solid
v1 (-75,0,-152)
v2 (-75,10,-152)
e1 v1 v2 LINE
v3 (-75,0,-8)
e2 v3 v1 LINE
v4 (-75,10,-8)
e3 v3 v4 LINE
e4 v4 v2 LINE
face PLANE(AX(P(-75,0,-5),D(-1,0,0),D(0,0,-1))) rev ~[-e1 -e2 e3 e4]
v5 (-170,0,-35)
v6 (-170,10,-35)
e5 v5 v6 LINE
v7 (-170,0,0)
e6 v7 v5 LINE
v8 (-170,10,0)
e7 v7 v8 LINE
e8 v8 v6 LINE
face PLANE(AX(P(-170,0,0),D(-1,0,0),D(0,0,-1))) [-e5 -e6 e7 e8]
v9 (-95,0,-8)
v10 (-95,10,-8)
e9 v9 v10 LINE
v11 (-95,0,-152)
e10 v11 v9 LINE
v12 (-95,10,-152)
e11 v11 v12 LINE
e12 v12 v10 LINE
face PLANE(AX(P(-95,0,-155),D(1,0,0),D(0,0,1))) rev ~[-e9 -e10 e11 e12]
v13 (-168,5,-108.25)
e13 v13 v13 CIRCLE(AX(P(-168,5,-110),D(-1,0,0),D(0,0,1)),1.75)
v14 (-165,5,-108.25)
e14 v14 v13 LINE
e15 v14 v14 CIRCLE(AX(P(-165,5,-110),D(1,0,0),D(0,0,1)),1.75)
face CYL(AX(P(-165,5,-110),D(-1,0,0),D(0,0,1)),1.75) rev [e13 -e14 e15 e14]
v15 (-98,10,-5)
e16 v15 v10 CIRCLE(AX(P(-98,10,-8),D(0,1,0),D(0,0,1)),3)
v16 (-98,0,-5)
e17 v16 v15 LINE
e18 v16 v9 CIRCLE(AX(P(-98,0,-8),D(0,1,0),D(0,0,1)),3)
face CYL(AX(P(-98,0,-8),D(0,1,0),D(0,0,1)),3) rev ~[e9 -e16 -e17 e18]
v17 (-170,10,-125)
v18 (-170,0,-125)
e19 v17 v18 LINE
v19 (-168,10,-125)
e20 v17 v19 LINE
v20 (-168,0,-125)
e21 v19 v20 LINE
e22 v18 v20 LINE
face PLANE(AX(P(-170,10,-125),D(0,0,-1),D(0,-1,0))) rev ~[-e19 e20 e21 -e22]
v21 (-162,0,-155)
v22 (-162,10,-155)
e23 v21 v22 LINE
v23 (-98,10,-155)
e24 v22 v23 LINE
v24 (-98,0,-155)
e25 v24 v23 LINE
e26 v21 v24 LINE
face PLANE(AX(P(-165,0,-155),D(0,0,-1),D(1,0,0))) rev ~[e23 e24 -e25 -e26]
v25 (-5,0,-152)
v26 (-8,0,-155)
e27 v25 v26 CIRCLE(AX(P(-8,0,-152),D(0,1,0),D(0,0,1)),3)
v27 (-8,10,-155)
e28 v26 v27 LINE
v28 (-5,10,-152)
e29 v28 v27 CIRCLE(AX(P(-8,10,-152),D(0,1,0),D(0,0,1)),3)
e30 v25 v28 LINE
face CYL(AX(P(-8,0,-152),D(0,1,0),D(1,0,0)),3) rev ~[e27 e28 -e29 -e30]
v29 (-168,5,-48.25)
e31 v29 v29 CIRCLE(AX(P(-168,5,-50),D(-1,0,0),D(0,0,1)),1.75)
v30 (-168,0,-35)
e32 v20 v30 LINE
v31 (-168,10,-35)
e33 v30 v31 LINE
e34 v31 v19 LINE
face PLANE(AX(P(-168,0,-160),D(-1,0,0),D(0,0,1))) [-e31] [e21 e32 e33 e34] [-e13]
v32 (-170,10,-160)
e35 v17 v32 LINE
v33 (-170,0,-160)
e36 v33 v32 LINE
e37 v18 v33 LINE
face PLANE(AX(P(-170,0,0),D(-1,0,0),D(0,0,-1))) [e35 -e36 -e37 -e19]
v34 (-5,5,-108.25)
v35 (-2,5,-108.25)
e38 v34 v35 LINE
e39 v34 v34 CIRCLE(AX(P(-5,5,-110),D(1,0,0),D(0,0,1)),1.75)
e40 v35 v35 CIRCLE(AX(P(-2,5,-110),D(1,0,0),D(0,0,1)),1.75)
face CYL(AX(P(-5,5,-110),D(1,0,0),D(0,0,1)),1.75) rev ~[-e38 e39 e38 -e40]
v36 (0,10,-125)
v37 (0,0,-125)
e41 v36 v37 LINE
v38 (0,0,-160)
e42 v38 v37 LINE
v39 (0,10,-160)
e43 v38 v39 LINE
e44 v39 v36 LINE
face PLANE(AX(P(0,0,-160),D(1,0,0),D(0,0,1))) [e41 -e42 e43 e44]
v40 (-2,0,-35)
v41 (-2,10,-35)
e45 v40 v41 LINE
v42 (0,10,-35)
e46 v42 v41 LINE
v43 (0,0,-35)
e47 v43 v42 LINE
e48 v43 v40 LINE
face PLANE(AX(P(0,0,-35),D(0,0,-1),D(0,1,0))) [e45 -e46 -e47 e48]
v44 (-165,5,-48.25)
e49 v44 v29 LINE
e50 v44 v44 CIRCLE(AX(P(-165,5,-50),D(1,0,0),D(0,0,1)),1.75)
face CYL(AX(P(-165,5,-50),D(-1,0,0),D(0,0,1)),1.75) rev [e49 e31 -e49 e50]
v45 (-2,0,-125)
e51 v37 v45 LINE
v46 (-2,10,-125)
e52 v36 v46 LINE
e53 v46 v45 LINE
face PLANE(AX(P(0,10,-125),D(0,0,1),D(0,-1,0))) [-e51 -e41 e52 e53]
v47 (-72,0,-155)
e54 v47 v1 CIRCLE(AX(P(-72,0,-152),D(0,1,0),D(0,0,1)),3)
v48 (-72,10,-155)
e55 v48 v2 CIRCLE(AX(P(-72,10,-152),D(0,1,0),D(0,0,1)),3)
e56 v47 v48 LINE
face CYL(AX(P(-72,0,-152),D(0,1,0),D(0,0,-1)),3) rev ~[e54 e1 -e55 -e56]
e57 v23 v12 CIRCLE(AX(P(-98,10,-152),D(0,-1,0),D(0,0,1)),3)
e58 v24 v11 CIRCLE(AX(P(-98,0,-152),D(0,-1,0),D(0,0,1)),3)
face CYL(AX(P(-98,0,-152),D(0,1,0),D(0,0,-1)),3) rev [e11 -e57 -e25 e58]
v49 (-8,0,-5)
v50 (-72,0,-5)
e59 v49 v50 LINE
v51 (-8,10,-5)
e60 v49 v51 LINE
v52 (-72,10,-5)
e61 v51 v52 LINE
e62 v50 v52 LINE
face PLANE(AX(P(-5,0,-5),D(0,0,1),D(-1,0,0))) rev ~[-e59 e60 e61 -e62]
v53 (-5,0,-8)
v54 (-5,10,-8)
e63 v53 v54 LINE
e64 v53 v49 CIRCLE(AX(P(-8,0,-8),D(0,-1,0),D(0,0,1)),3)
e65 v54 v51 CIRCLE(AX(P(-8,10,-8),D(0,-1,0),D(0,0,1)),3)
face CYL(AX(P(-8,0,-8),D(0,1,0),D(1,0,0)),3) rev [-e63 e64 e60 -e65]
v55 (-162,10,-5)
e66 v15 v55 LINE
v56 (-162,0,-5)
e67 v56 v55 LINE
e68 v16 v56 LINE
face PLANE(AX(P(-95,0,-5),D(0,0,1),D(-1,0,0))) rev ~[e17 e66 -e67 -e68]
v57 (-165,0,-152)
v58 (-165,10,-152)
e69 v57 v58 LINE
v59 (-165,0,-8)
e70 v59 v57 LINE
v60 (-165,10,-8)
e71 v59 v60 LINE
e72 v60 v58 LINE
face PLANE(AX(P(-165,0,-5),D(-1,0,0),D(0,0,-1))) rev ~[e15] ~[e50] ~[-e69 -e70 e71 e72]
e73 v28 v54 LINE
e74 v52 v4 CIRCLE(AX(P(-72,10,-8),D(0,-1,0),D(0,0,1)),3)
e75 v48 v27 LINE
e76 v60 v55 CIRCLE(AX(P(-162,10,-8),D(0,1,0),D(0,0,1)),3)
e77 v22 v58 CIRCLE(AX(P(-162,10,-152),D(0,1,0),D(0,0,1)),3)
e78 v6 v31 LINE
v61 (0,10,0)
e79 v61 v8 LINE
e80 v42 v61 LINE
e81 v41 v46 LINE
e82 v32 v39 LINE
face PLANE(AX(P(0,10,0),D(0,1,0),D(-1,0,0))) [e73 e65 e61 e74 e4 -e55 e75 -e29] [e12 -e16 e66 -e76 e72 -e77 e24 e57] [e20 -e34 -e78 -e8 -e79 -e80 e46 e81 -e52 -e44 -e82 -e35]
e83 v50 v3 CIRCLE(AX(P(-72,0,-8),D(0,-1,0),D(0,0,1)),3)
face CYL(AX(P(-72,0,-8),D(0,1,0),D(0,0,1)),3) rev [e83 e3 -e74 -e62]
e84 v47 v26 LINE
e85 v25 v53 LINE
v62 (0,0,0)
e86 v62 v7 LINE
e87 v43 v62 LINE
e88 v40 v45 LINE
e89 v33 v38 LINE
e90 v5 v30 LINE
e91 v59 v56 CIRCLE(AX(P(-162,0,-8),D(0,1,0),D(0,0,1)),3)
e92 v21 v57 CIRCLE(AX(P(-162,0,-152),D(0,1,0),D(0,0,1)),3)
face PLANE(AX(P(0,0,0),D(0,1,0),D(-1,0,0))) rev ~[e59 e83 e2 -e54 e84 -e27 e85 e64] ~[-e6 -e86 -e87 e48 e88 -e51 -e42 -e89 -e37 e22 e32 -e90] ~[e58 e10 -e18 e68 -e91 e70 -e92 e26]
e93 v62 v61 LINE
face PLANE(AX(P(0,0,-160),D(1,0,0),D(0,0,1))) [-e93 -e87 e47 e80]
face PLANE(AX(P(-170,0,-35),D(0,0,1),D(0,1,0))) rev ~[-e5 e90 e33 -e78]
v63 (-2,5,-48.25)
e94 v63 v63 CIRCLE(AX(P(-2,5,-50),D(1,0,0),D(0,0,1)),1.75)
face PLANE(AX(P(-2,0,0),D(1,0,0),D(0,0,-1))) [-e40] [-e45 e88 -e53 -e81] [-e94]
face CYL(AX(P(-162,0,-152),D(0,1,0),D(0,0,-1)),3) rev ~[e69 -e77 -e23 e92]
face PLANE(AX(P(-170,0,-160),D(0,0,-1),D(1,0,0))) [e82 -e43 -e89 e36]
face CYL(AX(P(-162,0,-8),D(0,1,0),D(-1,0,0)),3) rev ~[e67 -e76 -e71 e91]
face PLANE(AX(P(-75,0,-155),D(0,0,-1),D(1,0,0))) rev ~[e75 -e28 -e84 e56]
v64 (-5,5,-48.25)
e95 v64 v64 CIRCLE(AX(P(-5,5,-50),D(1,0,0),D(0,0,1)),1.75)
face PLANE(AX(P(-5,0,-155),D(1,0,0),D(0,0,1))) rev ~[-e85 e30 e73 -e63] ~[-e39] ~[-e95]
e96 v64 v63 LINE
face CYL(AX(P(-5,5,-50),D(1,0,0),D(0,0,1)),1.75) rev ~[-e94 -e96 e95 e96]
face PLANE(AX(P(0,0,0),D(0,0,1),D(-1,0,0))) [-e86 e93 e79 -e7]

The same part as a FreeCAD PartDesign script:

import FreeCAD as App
import Part
import Sketcher

V = App.Vector


def edges_at(feature, points):
    """Names of the edges that pass closest to the given points."""
    edges = feature.Shape.Edges
    near = lambda p: min(range(len(edges)), key=lambda i: edges[i].distToShape(Part.Vertex(*p))[0])
    return sorted({f"Edge{near(p) + 1}" for p in points})


def add_polygon(sketch, points):
    """Adds a closed chain of lines whose ends are joined by coincident constraints."""
    first, n = sketch.GeometryCount, len(points)
    for a, b in zip(points, points[1:] + points[:1]):
        sketch.addGeometry(Part.LineSegment(App.Vector(*a, 0), App.Vector(*b, 0)), False)
    for i in range(n):
        sketch.addConstraint(Sketcher.Constraint("Coincident", first + i, 2, first + (i + 1) % n, 1))

doc = App.newDocument("Part")
body = doc.addObject("PartDesign::Body", "Body")

sketch1 = body.newObject("Sketcher::SketchObject", "Sketch")
sketch1.AttachmentSupport = (doc.getObject("XZ_Plane"), [""])
sketch1.MapMode = "FlatFace"
add_polygon(sketch1, [(-170, 0), (0, 0), (0, -160), (-170, -160)])
add_polygon(sketch1, [(-5, -155), (-5, -5), (-75, -5), (-75, -155)])
add_polygon(sketch1, [(-165, -155), (-95, -155), (-95, -5), (-165, -5)])
sketch1.addConstraint([
    Sketcher.Constraint("Horizontal", 0),
    Sketcher.Constraint("Vertical", 1),
    Sketcher.Constraint("Horizontal", 2),
    Sketcher.Constraint("Vertical", 3),
    Sketcher.Constraint("Vertical", 4),
    Sketcher.Constraint("Horizontal", 5),
    Sketcher.Constraint("Vertical", 6),
    Sketcher.Constraint("Horizontal", 7),
    Sketcher.Constraint("Horizontal", 8),
    Sketcher.Constraint("Vertical", 9),
    Sketcher.Constraint("Horizontal", 10),
    Sketcher.Constraint("Vertical", 11),
    Sketcher.Constraint("Coincident", 0, 2, -1, 1),
    Sketcher.Constraint("Horizontal", 7, 2, 8, 2),
    Sketcher.Constraint("Horizontal", 5, 2, 9, 2),
    Sketcher.Constraint("Equal", 7, 8),
    Sketcher.Constraint("DistanceX", 0, 1, 0, 2, 170.0),
    Sketcher.Constraint("DistanceY", 1, 2, 1, 1, 160.0),
    Sketcher.Constraint("DistanceX", 4, 2, -1, 1, 5.0),
    Sketcher.Constraint("DistanceY", 4, 2, -1, 1, 5.0),
    Sketcher.Constraint("DistanceY", 1, 2, 6, 2, 5.0),
    Sketcher.Constraint("DistanceX", 8, 2, 6, 2, 20.0),
    Sketcher.Constraint("DistanceX", 3, 2, 10, 2, 5.0),
])
pad1 = body.newObject("PartDesign::Pad", "Pad")
pad1.Profile = sketch1
pad1.Length = 10
pad1.Reversed = True
doc.recompute()

fillet = body.newObject("PartDesign::Fillet", "Fillet")
fillet.Base = (pad1, edges_at(pad1, [
    (-165, 5, -5),
    (-95, 5, -5),
    (-5, 5, -5),
    (-5, 5, -155),
    (-75, 5, -155),
    (-95, 5, -155),
    (-75, 5, -5),
    (-165, 5, -155),
]))
fillet.Radius = 3

sketch2 = body.newObject("Sketcher::SketchObject", "Sketch001")
sketch2.AttachmentSupport = (doc.getObject("YZ_Plane"), [""])
sketch2.MapMode = "FlatFace"
sketch2.AttachmentOffset = App.Placement(V(0, 0, -5), App.Rotation())
sketch2.addGeometry([
    Part.Circle(V(5, -50, 0), V(0, 0, 1), 1.75),
    Part.Circle(V(5, -110, 0), V(0, 0, 1), 1.75),
], False)
sketch2.addConstraint([
    Sketcher.Constraint("Equal", 0, 1),
    Sketcher.Constraint("Vertical", 0, 3, 1, 3),
    Sketcher.Constraint("Diameter", 0, 3.5),
    Sketcher.Constraint("DistanceX", -1, 1, 0, 3, 5.0),
    Sketcher.Constraint("DistanceY", 0, 3, -1, 1, 50.0),
    Sketcher.Constraint("DistanceY", 1, 3, -1, 1, 110.0),
])
doc.recompute()
hole = body.newObject("PartDesign::Hole", "Hole")
hole.Profile = sketch2
hole.ThreadType = "None"
hole.Diameter = 3.5
hole.DepthType = "ThroughAll"
hole.Reversed = True

sketch3 = body.newObject("Sketcher::SketchObject", "Sketch002")
sketch3.AttachmentSupport = (doc.getObject("YZ_Plane"), [""])
sketch3.MapMode = "FlatFace"
add_polygon(sketch3, [(10, -125), (10, -35), (0, -35), (0, -125)])
sketch3.addConstraint([
    Sketcher.Constraint("Vertical", 0),
    Sketcher.Constraint("Horizontal", 1),
    Sketcher.Constraint("Vertical", 2),
    Sketcher.Constraint("Horizontal", 3),
    Sketcher.Constraint("PointOnObject", 1, 2, -2),
    Sketcher.Constraint("DistanceY", 0, 1, 0, 2, 90.0),
    Sketcher.Constraint("DistanceY", 0, 2, -1, 1, 35.0),
    Sketcher.Constraint("DistanceX", 1, 2, 1, 1, 10.0),
])
pocket1 = body.newObject("PartDesign::Pocket", "Pocket")
pocket1.Profile = sketch3
pocket1.Length = 2

sketch4 = body.newObject("Sketcher::SketchObject", "Sketch003")
sketch4.AttachmentSupport = (doc.getObject("YZ_Plane"), [""])
sketch4.MapMode = "FlatFace"
sketch4.AttachmentOffset = App.Placement(V(0, 0, -170), App.Rotation())
add_polygon(sketch4, [(10, -125), (0, -125), (0, -35), (10, -35)])
sketch4.addConstraint([
    Sketcher.Constraint("Horizontal", 0),
    Sketcher.Constraint("Vertical", 1),
    Sketcher.Constraint("Horizontal", 2),
    Sketcher.Constraint("Vertical", 3),
    Sketcher.Constraint("PointOnObject", 0, 2, -2),
    Sketcher.Constraint("DistanceY", 1, 1, 1, 2, 90.0),
    Sketcher.Constraint("DistanceY", 1, 2, -1, 1, 35.0),
    Sketcher.Constraint("DistanceX", 0, 2, 0, 1, 10.0),
])
pocket2 = body.newObject("PartDesign::Pocket", "Pocket001")
pocket2.Profile = sketch4
pocket2.Length = 2
pocket2.Reversed = True
doc.recompute()

datumplane = body.newObject("PartDesign::Plane", "DatumPlane")
datumplane.AttachmentSupport = (doc.getObject("YZ_Plane"), [""])
datumplane.MapMode = "FlatFace"
datumplane.AttachmentOffset = App.Placement(V(0, 0, -85), App.Rotation())
mirrored = body.newObject("PartDesign::Mirrored", "Mirrored")
mirrored.Originals = [hole]
mirrored.MirrorPlane = (datumplane, [""])
body.Tip = mirrored

doc.recompute()
